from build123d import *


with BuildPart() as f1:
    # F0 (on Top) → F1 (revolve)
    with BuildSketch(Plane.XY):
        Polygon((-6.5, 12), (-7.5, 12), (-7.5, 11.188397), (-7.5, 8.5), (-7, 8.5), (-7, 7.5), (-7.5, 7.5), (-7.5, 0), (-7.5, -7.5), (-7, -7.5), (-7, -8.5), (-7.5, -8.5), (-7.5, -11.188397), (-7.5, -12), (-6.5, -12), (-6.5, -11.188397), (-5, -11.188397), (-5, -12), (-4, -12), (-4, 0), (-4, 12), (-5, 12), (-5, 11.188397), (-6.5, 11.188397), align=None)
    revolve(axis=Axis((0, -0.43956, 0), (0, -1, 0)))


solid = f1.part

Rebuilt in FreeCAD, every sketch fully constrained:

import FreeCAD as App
import Part
import Sketcher
Q = App.Units.Quantity


def add_polygon(sketch, points):
    """Adds a closed chain of lines whose ends are joined by coincident constraints."""
    first, n = sketch.GeometryCount, len(points)
    for a, b in zip(points, points[1:] + points[:1]):
        sketch.addGeometry(Part.LineSegment(App.Vector(*a, 0), App.Vector(*b, 0)), False)
    for i in range(n):
        sketch.addConstraint(Sketcher.Constraint("Coincident", first + i, 2, first + (i + 1) % n, 1))

doc = App.newDocument("Part")
body = doc.addObject("PartDesign::Body", "Body")

# Sketch on XY plane
sketch1 = doc.addObject("Sketcher::SketchObject", "Sketch")
body.addObject(sketch1)
sketch1.AttachmentSupport = (doc.XY_Plane, [""])
sketch1.MapMode = "FlatFace"
add_polygon(sketch1, [(-6.5, 12), (-7.5, 12), (-7.5, 8.5), (-7, 8.5), (-7, 7.5), (-7.5, 7.5), (-7.5, -7.5), (-7, -7.5), (-7, -8.5), (-7.5, -8.5), (-7.5, -12), (-6.5, -12), (-6.5, -11.2), (-5, -11.2), (-5, -12), (-4, -12), (-4, 12), (-5, 12), (-5, 11.2), (-6.5, 11.2)])  # lines 0-19
sketch1.addConstraint([
    Sketcher.Constraint("Horizontal", 0),
    Sketcher.Constraint("Vertical", 1),
    Sketcher.Constraint("Horizontal", 2),
    Sketcher.Constraint("Vertical", 3),
    Sketcher.Constraint("Horizontal", 4),
    Sketcher.Constraint("Vertical", 5),
    Sketcher.Constraint("Horizontal", 6),
    Sketcher.Constraint("Vertical", 7),
    Sketcher.Constraint("Horizontal", 8),
    Sketcher.Constraint("Vertical", 9),
    Sketcher.Constraint("Horizontal", 10),
    Sketcher.Constraint("Vertical", 11),
    Sketcher.Constraint("Horizontal", 12),
    Sketcher.Constraint("Vertical", 13),
    Sketcher.Constraint("Horizontal", 14),
    Sketcher.Constraint("Vertical", 15),
    Sketcher.Constraint("Horizontal", 16),
    Sketcher.Constraint("Vertical", 17),
    Sketcher.Constraint("Horizontal", 18),
    Sketcher.Constraint("Vertical", 19),
    Sketcher.Constraint("Symmetric", 3, 2, 6, 2, -1),
    Sketcher.Constraint("Symmetric", 1, 2, 8, 2, -1),
    Sketcher.Constraint("Symmetric", 13, 2, 16, 2, -1),
    Sketcher.Constraint("Symmetric", 11, 2, 18, 2, -1),
    Sketcher.Constraint("Horizontal", 10, 2, 13, 2),
    Sketcher.Constraint("Horizontal", 0, 2, 15, 2),
    Sketcher.Constraint("Vertical", 1, 2, 4, 2),
    Sketcher.Constraint("Equal", 10, 14),
    Sketcher.Constraint("Equal", 16, 3),
    Sketcher.Constraint("DistanceX", 0, 2, 0, 1, Q("1 mm")),
    Sketcher.Constraint("DistanceY", 5, 2, 5, 1, Q("15 mm")),
    Sketcher.Constraint("DistanceY", 15, 1, 15, 2, Q("24 mm")),
    Sketcher.Constraint("DistanceX", 2, 1, 2, 2, Q("0.5 mm")),
    Sketcher.Constraint("DistanceX", 12, 1, 12, 2, Q("1.5 mm")),
    Sketcher.Constraint("DistanceX", 2, 2, -1, 1, Q("7 mm")),
    Sketcher.Constraint("DistanceY", 11, 1, 11, 2, Q("0.811603 mm")),
])
revolution = doc.addObject("PartDesign::Revolution", "Revolution")
body.addObject(revolution)
revolution.Profile = sketch1
revolution.ReferenceAxis = (sketch1, ["V_Axis"])
revolution.Angle = 360

doc.recompute()
